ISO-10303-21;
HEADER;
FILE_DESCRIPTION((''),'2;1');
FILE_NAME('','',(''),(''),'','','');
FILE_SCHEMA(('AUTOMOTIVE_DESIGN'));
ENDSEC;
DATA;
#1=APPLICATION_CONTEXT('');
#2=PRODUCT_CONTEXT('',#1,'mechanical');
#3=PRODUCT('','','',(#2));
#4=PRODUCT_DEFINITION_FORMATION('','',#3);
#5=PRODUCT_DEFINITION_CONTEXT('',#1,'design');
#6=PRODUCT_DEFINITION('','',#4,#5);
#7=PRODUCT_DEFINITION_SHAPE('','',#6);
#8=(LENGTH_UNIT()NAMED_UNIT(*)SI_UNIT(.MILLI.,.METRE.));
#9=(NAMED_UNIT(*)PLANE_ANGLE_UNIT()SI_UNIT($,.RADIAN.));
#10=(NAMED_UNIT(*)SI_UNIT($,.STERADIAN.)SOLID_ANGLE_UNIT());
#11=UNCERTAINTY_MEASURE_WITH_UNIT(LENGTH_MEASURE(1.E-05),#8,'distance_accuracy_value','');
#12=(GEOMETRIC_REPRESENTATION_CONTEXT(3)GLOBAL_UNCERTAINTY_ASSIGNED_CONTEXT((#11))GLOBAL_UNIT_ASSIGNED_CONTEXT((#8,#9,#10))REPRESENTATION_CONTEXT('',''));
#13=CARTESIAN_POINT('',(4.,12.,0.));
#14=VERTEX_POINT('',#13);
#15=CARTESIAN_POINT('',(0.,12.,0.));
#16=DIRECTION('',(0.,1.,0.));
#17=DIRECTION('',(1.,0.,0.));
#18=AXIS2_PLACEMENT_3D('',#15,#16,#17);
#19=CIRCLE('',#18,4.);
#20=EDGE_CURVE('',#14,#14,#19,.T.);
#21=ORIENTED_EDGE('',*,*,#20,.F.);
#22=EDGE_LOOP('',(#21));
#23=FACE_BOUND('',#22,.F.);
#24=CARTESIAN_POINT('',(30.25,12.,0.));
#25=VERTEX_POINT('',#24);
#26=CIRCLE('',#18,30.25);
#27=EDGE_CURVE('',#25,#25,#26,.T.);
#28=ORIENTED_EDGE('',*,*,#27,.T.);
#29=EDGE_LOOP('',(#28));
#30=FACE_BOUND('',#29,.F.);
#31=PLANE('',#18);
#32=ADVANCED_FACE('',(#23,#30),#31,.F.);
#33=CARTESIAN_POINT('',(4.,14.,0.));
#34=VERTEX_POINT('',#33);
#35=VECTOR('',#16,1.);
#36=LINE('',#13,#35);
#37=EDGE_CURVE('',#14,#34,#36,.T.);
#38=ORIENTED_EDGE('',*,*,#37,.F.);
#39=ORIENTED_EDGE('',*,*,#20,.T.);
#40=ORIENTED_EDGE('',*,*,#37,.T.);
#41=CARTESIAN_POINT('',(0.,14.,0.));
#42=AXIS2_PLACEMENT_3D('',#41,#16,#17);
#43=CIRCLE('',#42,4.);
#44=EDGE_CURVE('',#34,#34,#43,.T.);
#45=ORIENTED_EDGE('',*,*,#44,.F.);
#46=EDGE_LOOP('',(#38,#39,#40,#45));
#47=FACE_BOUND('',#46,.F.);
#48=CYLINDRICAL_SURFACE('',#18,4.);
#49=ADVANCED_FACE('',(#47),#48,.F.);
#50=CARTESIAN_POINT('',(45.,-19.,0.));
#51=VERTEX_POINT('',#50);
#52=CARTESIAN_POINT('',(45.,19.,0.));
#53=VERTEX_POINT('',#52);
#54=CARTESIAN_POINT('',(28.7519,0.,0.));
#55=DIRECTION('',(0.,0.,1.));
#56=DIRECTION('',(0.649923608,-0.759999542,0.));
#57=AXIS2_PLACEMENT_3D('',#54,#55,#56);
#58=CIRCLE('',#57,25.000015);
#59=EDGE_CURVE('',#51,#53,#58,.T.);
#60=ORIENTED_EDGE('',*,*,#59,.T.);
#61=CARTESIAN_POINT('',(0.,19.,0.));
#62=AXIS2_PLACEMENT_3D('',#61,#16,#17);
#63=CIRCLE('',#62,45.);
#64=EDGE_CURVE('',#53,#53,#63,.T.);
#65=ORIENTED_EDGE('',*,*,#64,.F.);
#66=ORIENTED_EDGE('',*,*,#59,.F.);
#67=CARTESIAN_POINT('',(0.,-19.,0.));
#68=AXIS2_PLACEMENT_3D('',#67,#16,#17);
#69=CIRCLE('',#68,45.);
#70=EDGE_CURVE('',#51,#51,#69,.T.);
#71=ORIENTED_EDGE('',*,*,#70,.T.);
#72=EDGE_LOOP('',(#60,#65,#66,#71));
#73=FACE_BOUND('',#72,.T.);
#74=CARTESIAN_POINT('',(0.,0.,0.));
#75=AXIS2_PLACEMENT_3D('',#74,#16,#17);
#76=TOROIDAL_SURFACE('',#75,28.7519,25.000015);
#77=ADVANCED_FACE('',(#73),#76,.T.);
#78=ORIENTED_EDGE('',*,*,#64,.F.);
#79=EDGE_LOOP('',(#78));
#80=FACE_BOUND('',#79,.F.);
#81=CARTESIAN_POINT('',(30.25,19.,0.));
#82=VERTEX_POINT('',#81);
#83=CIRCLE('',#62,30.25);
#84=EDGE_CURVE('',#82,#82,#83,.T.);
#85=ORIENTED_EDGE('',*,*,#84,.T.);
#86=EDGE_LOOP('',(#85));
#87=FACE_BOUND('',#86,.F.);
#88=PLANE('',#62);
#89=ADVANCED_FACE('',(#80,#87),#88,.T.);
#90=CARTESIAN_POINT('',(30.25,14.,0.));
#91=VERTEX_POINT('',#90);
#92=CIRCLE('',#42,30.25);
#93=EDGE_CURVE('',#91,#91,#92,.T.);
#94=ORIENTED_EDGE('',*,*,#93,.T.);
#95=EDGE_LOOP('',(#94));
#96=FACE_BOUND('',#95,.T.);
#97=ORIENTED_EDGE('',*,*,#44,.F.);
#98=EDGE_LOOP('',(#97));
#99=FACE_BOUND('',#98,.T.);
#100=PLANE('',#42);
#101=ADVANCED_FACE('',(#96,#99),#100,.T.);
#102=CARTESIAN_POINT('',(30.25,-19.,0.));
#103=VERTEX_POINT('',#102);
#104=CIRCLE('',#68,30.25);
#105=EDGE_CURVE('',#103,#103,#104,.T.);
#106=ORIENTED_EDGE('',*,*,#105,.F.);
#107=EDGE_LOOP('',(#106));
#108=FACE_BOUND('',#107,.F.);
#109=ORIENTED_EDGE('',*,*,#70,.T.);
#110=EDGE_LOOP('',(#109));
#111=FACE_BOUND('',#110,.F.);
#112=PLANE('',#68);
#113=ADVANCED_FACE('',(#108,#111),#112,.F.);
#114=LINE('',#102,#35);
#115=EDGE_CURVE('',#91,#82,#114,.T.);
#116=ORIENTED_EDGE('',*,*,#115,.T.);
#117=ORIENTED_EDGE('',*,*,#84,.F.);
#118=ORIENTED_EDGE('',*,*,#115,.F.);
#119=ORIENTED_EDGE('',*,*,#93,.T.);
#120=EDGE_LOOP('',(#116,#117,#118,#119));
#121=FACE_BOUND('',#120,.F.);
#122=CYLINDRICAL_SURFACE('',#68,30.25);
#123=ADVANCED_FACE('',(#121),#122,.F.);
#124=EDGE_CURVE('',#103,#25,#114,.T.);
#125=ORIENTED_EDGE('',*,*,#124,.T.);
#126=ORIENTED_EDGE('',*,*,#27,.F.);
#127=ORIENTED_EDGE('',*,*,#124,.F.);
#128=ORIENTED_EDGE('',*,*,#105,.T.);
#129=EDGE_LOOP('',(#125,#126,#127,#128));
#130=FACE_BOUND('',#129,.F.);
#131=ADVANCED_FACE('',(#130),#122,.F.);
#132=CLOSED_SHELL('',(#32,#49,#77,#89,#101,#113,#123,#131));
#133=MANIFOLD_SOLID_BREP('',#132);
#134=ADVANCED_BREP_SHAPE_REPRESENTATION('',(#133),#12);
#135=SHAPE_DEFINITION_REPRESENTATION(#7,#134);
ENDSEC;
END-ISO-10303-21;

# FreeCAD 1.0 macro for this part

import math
import FreeCAD as App
import Part
import Sketcher
from FreeCAD import Vector

doc = App.newDocument("Part")
body = doc.addObject("PartDesign::Body", "Body")

# Sketch on XY plane
sketch1 = doc.addObject("Sketcher::SketchObject", "Sketch")
body.addObject(sketch1)
sketch1.AttachmentSupport = (doc.XY_Plane, [""])
sketch1.MapMode = "FlatFace"
sketch1.addGeometry([
    Part.LineSegment(Vector(30.25, -19, 0), Vector(45, -19, 0)),  # 0
    Part.ArcOfCircle(Part.Circle(Vector(28.7519, 0, 0), Vector(0, 0, 1), 25.000015), math.radians(-49.464157), math.radians(49.464157)),  # 1
    Part.LineSegment(Vector(45, 19, 0), Vector(30.25, 19, 0)),  # 2
    Part.LineSegment(Vector(30.25, 19, 0), Vector(30.25, 14, 0)),  # 3
    Part.LineSegment(Vector(30.25, 14, 0), Vector(4, 14, 0)),  # 4
    Part.LineSegment(Vector(4, 14, 0), Vector(4, 12, 0)),  # 5
    Part.LineSegment(Vector(4, 12, 0), Vector(30.25, 12, 0)),  # 6
    Part.LineSegment(Vector(30.25, 12, 0), Vector(30.25, -19, 0)),  # 7
], False)
sketch1.addConstraint([
    Sketcher.Constraint("Coincident", 0, 2, 1, 1),
    Sketcher.Constraint("Coincident", 1, 2, 2, 1),
    Sketcher.Constraint("Coincident", 2, 2, 3, 1),
    Sketcher.Constraint("Coincident", 3, 2, 4, 1),
    Sketcher.Constraint("Coincident", 4, 2, 5, 1),
    Sketcher.Constraint("Coincident", 5, 2, 6, 1),
    Sketcher.Constraint("Coincident", 6, 2, 7, 1),
    Sketcher.Constraint("Coincident", 7, 2, 0, 1),
    Sketcher.Constraint("Horizontal", 0),
    Sketcher.Constraint("Horizontal", 2),
    Sketcher.Constraint("Vertical", 3),
    Sketcher.Constraint("Horizontal", 4),
    Sketcher.Constraint("Vertical", 5),
    Sketcher.Constraint("Horizontal", 6),
    Sketcher.Constraint("Vertical", 7),
    Sketcher.Constraint("Symmetric", 0, 2, 1, 2, -1),
    Sketcher.Constraint("Vertical", 3, 2, 6, 2),
    Sketcher.Constraint("Radius", 1, 25.0),
    Sketcher.Constraint("DistanceY", 3, 2, 3, 1, 5.0),
    Sketcher.Constraint("DistanceY", 5, 2, 5, 1, 2.0),
    Sketcher.Constraint("DistanceX", -1, 1, 0, 2, 45.0),
    Sketcher.Constraint("DistanceX", -1, 1, 4, 2, 4.0),
    Sketcher.Constraint("DistanceY", 0, 2, 1, 2, 38.0),
    Sketcher.Constraint("DistanceX", -1, 1, 2, 2, 30.25),
])
revolution = doc.addObject("PartDesign::Revolution", "Revolution")
body.addObject(revolution)
revolution.Profile = sketch1
revolution.ReferenceAxis = (sketch1, ["V_Axis"])
revolution.Angle = 360

doc.recompute()
